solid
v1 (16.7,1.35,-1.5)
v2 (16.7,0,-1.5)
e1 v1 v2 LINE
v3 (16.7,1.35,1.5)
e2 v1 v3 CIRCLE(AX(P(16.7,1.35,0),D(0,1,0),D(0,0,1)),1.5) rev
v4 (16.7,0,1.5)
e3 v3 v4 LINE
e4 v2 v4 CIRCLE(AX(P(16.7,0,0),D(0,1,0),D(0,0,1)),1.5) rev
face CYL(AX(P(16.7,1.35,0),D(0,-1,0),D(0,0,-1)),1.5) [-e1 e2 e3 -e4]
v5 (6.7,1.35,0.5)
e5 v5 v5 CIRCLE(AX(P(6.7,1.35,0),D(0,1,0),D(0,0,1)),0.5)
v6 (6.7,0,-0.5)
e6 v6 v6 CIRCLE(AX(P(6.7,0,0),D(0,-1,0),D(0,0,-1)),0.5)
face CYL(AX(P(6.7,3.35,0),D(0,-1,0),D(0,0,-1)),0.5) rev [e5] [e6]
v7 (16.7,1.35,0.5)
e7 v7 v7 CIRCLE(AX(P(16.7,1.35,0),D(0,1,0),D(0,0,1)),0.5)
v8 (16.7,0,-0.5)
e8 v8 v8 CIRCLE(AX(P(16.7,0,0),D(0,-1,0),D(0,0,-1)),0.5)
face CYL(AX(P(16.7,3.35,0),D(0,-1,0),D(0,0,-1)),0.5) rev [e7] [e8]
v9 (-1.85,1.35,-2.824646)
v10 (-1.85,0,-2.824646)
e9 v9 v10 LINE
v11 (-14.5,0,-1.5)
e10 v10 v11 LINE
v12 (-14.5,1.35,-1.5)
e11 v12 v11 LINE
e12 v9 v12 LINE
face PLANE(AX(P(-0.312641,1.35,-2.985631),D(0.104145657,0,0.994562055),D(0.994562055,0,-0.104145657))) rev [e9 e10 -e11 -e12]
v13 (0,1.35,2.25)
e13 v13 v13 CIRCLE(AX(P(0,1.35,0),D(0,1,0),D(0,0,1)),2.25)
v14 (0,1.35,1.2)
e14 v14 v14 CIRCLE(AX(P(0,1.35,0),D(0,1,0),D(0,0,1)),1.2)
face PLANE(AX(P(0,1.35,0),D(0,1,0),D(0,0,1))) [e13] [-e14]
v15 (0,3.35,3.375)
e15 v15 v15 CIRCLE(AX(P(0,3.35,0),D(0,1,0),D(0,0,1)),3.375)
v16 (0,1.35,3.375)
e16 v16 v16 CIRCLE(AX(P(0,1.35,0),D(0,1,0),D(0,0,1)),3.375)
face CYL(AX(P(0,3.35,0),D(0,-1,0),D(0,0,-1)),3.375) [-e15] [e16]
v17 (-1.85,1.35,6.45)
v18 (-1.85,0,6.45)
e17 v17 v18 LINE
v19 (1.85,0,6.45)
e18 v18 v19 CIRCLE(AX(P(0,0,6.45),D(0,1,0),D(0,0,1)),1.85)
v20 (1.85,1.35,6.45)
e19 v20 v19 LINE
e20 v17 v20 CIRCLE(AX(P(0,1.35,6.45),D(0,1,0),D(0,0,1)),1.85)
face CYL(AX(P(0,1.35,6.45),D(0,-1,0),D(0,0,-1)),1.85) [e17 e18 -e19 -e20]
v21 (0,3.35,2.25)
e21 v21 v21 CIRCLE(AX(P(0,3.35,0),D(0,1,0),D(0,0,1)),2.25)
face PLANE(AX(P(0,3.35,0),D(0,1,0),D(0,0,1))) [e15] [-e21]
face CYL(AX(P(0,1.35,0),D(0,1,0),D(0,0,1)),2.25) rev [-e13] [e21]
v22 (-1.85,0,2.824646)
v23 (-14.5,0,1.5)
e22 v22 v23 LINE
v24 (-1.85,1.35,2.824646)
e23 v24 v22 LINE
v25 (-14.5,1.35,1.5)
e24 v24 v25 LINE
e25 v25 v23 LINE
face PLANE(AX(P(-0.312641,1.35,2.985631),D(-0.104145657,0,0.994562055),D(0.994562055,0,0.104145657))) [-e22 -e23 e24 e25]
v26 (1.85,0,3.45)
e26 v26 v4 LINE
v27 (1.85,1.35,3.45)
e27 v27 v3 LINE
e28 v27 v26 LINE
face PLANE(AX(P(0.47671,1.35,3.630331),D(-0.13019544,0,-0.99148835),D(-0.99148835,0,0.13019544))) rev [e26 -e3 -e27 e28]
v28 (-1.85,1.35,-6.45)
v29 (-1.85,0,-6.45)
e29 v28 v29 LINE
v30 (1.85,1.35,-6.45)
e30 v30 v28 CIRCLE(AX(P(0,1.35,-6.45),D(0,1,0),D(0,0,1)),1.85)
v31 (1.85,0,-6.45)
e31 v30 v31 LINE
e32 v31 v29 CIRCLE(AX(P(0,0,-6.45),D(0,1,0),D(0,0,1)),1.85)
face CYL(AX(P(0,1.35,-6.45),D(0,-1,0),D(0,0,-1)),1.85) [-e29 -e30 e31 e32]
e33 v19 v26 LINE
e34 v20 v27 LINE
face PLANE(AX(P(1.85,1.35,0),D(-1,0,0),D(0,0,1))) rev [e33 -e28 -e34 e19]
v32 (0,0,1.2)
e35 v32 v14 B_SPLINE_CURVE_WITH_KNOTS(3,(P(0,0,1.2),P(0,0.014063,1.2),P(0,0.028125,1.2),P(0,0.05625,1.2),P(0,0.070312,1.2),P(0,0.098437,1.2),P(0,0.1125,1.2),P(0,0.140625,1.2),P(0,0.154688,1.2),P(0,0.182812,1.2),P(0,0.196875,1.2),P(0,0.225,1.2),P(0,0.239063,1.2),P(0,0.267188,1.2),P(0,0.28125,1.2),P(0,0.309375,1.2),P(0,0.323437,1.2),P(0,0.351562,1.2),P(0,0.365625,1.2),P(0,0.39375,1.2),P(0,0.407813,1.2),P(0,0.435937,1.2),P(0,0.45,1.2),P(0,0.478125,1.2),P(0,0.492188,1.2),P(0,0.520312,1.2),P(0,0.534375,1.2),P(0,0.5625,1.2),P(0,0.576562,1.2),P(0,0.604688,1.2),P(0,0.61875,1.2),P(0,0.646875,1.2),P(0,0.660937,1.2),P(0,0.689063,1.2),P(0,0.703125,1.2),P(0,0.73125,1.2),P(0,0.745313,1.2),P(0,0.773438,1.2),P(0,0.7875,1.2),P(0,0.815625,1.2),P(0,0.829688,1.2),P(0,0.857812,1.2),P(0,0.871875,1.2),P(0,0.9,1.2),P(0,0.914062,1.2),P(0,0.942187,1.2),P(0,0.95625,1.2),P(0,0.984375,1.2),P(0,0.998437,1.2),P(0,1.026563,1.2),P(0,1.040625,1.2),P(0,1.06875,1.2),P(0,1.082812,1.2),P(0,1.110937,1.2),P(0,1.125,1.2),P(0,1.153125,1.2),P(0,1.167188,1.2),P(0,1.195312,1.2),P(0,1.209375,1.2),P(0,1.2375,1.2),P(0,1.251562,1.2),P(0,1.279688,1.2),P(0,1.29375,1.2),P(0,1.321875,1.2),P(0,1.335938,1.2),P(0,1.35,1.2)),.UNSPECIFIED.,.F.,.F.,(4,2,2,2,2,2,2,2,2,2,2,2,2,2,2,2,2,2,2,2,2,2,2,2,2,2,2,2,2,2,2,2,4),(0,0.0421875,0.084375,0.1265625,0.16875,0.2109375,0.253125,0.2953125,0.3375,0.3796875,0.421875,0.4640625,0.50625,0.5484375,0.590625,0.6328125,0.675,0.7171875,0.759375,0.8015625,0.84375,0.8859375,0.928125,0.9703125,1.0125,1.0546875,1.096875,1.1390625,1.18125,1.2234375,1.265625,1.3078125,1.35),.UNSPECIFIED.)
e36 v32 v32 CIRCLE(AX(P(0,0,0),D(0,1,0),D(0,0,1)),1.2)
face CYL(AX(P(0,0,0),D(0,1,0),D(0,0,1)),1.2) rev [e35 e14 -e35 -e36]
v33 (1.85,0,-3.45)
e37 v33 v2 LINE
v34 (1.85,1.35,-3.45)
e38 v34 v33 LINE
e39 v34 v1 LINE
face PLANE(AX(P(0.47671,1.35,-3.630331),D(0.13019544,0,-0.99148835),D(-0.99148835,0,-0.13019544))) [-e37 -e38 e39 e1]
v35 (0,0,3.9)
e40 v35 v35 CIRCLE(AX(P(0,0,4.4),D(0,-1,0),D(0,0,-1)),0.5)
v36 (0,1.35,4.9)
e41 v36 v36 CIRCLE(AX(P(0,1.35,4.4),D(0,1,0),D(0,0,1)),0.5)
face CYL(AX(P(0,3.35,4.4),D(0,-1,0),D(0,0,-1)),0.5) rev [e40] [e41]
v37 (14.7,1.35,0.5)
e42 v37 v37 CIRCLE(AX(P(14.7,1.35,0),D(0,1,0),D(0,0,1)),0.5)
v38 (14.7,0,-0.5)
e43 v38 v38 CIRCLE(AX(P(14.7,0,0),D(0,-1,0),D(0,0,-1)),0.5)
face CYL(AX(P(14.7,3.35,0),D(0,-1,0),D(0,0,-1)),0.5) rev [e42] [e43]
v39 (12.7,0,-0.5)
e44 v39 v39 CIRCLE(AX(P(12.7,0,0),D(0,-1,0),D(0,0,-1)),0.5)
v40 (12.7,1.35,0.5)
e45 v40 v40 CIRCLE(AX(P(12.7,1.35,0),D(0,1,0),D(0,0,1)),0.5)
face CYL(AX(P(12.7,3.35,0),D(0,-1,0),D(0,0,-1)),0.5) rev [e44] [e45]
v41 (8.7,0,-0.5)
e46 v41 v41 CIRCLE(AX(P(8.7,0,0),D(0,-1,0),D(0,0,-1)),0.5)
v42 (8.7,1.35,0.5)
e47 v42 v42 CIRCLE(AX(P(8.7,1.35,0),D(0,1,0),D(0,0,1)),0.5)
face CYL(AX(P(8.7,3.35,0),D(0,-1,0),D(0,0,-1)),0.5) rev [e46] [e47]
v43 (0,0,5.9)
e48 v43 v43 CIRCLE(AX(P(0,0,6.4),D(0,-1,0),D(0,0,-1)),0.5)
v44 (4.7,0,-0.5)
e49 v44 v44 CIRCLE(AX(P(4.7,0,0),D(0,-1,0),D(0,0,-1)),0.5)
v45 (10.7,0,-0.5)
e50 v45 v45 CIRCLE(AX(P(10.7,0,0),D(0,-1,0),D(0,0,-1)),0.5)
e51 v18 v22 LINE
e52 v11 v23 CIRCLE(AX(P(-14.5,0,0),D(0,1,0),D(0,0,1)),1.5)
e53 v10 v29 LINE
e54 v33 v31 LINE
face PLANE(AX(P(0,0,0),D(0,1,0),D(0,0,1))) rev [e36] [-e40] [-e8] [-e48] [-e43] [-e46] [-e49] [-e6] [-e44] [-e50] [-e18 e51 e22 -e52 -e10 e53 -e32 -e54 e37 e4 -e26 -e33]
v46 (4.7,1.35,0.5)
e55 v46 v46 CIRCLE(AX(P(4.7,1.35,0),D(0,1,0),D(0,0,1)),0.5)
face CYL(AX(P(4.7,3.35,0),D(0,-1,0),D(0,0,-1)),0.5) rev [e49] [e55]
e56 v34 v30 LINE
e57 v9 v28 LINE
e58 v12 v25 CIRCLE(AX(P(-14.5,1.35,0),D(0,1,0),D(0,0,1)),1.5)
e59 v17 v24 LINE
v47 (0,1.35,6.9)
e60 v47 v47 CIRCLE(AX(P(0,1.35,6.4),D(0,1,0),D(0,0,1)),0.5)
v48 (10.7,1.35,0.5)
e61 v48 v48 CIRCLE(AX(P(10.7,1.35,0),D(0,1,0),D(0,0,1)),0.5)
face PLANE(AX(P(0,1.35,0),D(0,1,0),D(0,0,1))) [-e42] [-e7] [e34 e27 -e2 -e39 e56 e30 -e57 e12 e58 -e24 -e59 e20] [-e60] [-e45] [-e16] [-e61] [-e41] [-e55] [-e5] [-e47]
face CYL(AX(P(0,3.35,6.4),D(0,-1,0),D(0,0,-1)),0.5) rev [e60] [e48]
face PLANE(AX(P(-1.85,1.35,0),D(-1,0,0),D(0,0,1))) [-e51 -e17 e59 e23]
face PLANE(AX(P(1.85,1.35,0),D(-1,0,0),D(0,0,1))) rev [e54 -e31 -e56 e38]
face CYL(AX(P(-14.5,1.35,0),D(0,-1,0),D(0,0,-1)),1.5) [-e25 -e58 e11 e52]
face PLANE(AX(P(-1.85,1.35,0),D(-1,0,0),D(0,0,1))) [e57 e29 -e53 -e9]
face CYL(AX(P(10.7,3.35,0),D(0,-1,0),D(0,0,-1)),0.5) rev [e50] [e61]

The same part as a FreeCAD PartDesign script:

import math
import FreeCAD as App
import Part
import Sketcher

V = App.Vector

doc = App.newDocument("Part")
body = doc.addObject("PartDesign::Body", "Body")

# Sketch on XZ plane
sketch1 = doc.addObject("Sketcher::SketchObject", "Sketch")
body.addObject(sketch1)
sketch1.AttachmentSupport = (doc.XZ_Plane, [""])
sketch1.MapMode = "FlatFace"
sketch1.addGeometry([
    Part.ArcOfCircle(Part.Circle(V(-14.5, 0, 0), V(0, 0, 1), 1.5), math.radians(90), math.radians(270)),  # 0
    Part.LineSegment(V(-14.5, 1.5, 0), V(-1.9, 2.8, 0)),  # 1
    Part.LineSegment(V(-1.9, 2.8, 0), V(-1.9, 6.5, 0)),  # 2
    Part.ArcOfCircle(Part.Circle(V(0, 6.5, 0), V(0, 0, 1), 1.9), math.radians(0), math.radians(180)),  # 3
    Part.LineSegment(V(1.9, 6.5, 0), V(1.9, 3.5, 0)),  # 4
    Part.LineSegment(V(1.9, 3.5, 0), V(16.7, 1.5, 0)),  # 5
    Part.ArcOfCircle(Part.Circle(V(16.7, 0, 0), V(0, 0, 1), 1.5), math.radians(-90), math.radians(90)),  # 6
    Part.LineSegment(V(16.7, -1.5, 0), V(1.9, -3.5, 0)),  # 7
    Part.LineSegment(V(1.9, -3.5, 0), V(1.9, -6.5, 0)),  # 8
    Part.ArcOfCircle(Part.Circle(V(0, -6.5, 0), V(0, 0, 1), 1.9), math.radians(180), math.radians(360)),  # 9
    Part.LineSegment(V(-1.9, -6.5, 0), V(-1.9, -2.8, 0)),  # 10
    Part.LineSegment(V(-1.9, -2.8, 0), V(-14.5, -1.5, 0)),  # 11
], False)
sketch1.addConstraint([
    Sketcher.Constraint("Coincident", 0, 1, 1, 1),
    Sketcher.Constraint("Coincident", 1, 2, 2, 1),
    Sketcher.Constraint("Tangent", 2, 2, 3, 2),
    Sketcher.Constraint("Tangent", 3, 1, 4, 1),
    Sketcher.Constraint("Coincident", 4, 2, 5, 1),
    Sketcher.Constraint("Coincident", 5, 2, 6, 2),
    Sketcher.Constraint("Coincident", 6, 1, 7, 1),
    Sketcher.Constraint("Coincident", 7, 2, 8, 1),
    Sketcher.Constraint("Tangent", 8, 2, 9, 2),
    Sketcher.Constraint("Tangent", 9, 1, 10, 1),
    Sketcher.Constraint("Coincident", 10, 2, 11, 1),
    Sketcher.Constraint("Coincident", 11, 2, 0, 2),
    Sketcher.Constraint("Vertical", 2),
    Sketcher.Constraint("Vertical", 4),
    Sketcher.Constraint("Vertical", 8),
    Sketcher.Constraint("Vertical", 10),
    Sketcher.Constraint("Equal", 0, 6),
    Sketcher.Constraint("Equal", 3, 9),
    Sketcher.Constraint("Symmetric", 3, 3, 9, 3, -1, 1),
    Sketcher.Constraint("Symmetric", 5, 2, 6, 1, -1),
    Sketcher.Constraint("Symmetric", 4, 2, 7, 2, -1),
    Sketcher.Constraint("Symmetric", 0, 1, 11, 2, -1),
    Sketcher.Constraint("Vertical", 6, 3, 5, 2),
    Sketcher.Constraint("Equal", 2, 10),
    Sketcher.Constraint("Radius", 0, 1.5),
    Sketcher.Constraint("DistanceY", 4, 2, 4, 1, 3.0),
    Sketcher.Constraint("Radius", 3, 1.85),
    Sketcher.Constraint("DistanceX", 0, 3, -1, 1, 14.5),
    Sketcher.Constraint("DistanceX", -1, 1, 6, 3, 16.7),
    Sketcher.Constraint("DistanceX", 0, 1, -1, 1, 14.5),
    Sketcher.Constraint("DistanceY", 9, 3, 3, 3, 12.9),
    Sketcher.Constraint("DistanceY", 2, 1, 2, 2, 3.625354),
])
pad1 = doc.addObject("PartDesign::Pad", "Pad")
body.addObject(pad1)
pad1.Profile = sketch1
pad1.Length = 1.35
pad1.Reversed = True

# Sketch on XZ plane
sketch2 = doc.addObject("Sketcher::SketchObject", "Sketch001")
body.addObject(sketch2)
sketch2.AttachmentSupport = (doc.XZ_Plane, [""])
sketch2.MapMode = "FlatFace"
sketch2.AttachmentOffset = App.Placement(V(0, 0, -1.35), App.Rotation())
sketch2.addGeometry(Part.Circle(V(0, 0, 0), V(0, 0, 1), 3.4), False)
sketch2.addConstraint([
    Sketcher.Constraint("Coincident", 0, 3, -1, 1),
    Sketcher.Constraint("Diameter", 0, 6.75),
])
pad2 = doc.addObject("PartDesign::Pad", "Pad001")
body.addObject(pad2)
pad2.Profile = sketch2
pad2.Length = 2
pad2.Reversed = True

# Sketch on XZ plane
sketch3 = doc.addObject("Sketcher::SketchObject", "Sketch002")
body.addObject(sketch3)
sketch3.AttachmentSupport = (doc.XZ_Plane, [""])
sketch3.MapMode = "FlatFace"
sketch3.AttachmentOffset = App.Placement(V(0, 0, -3.35), App.Rotation())
sketch3.addGeometry(Part.Circle(V(0, 0, 0), V(0, 0, 1), 2.2), False)
sketch3.addConstraint([
    Sketcher.Constraint("Coincident", 0, 3, -1, 1),
    Sketcher.Constraint("Diameter", 0, 4.5),
])
pocket1 = doc.addObject("PartDesign::Pocket", "Pocket")
body.addObject(pocket1)
pocket1.Profile = sketch3
pocket1.Length = 2
pocket1.Reversed = True

# Sketch on XZ plane
sketch4 = doc.addObject("Sketcher::SketchObject", "Sketch003")
body.addObject(sketch4)
sketch4.AttachmentSupport = (doc.XZ_Plane, [""])
sketch4.MapMode = "FlatFace"
sketch4.AttachmentOffset = App.Placement(V(0, 0, -1.35), App.Rotation())
sketch4.addGeometry(Part.Circle(V(0, 0, 0), V(0, 0, 1), 1.2), False)
sketch4.addConstraint([
    Sketcher.Constraint("Coincident", 0, 3, -1, 1),
    Sketcher.Constraint("Diameter", 0, 2.4),
])
pocket2 = doc.addObject("PartDesign::Pocket", "Pocket001")
body.addObject(pocket2)
pocket2.Profile = sketch4
pocket2.Type = "ThroughAll"
pocket2.Reversed = True

# Sketch on XZ plane
sketch5 = doc.addObject("Sketcher::SketchObject", "Sketch004")
body.addObject(sketch5)
sketch5.AttachmentSupport = (doc.XZ_Plane, [""])
sketch5.MapMode = "FlatFace"
sketch5.addGeometry([
    Part.Circle(V(8.7, 0, 0), V(0, 0, 1), 0.5),  # 0
    Part.Circle(V(10.7, 0, 0), V(0, 0, 1), 0.5),  # 1
    Part.Circle(V(12.7, 0, 0), V(0, 0, 1), 0.5),  # 2
    Part.Circle(V(14.7, 0, 0), V(0, 0, 1), 0.5),  # 3
    Part.Circle(V(16.7, 0, 0), V(0, 0, 1), 0.5),  # 4
    Part.Circle(V(6.7, 0, 0), V(0, 0, 1), 0.5),  # 5
    Part.Circle(V(4.7, 0, 0), V(0, 0, 1), 0.5),  # 6
    Part.Circle(V(0, 4.4, 0), V(0, 0, 1), 0.5),  # 7
    Part.Circle(V(0, 6.4, 0), V(0, 0, 1), 0.5),  # 8
], False)
sketch5.addConstraint([
    Sketcher.Constraint("Equal", 0, 1),
    Sketcher.Constraint("Equal", 1, 2),
    Sketcher.Constraint("Equal", 2, 3),
    Sketcher.Constraint("Equal", 3, 4),
    Sketcher.Constraint("Equal", 4, 5),
    Sketcher.Constraint("Equal", 5, 6),
    Sketcher.Constraint("Equal", 6, 7),
    Sketcher.Constraint("Equal", 7, 8),
    Sketcher.Constraint("PointOnObject", 0, 3, -1),
    Sketcher.Constraint("PointOnObject", 1, 3, -1),
    Sketcher.Constraint("PointOnObject", 2, 3, -1),
    Sketcher.Constraint("PointOnObject", 3, 3, -1),
    Sketcher.Constraint("PointOnObject", 4, 3, -1),
    Sketcher.Constraint("PointOnObject", 5, 3, -1),
    Sketcher.Constraint("PointOnObject", 6, 3, -1),
    Sketcher.Constraint("PointOnObject", 7, 3, -2),
    Sketcher.Constraint("PointOnObject", 8, 3, -2),
    Sketcher.Constraint("Diameter", 0, 1.0),
    Sketcher.Constraint("DistanceX", 0, 3, 1, 3, 2.0),
    Sketcher.Constraint("DistanceX", 1, 3, 2, 3, 2.0),
    Sketcher.Constraint("DistanceX", 2, 3, 3, 3, 2.0),
    Sketcher.Constraint("DistanceX", 3, 3, 4, 3, 2.0),
    Sketcher.Constraint("DistanceX", 5, 3, 0, 3, 2.0),
    Sketcher.Constraint("DistanceX", 6, 3, 5, 3, 2.0),
    Sketcher.Constraint("DistanceY", 7, 3, 8, 3, 2.0),
    Sketcher.Constraint("DistanceX", -1, 1, 0, 3, 8.7),
    Sketcher.Constraint("DistanceY", -1, 1, 7, 3, 4.4),
])
pocket3 = doc.addObject("PartDesign::Pocket", "Pocket002")
body.addObject(pocket3)
pocket3.Profile = sketch5
pocket3.Type = "ThroughAll"

doc.recompute()
